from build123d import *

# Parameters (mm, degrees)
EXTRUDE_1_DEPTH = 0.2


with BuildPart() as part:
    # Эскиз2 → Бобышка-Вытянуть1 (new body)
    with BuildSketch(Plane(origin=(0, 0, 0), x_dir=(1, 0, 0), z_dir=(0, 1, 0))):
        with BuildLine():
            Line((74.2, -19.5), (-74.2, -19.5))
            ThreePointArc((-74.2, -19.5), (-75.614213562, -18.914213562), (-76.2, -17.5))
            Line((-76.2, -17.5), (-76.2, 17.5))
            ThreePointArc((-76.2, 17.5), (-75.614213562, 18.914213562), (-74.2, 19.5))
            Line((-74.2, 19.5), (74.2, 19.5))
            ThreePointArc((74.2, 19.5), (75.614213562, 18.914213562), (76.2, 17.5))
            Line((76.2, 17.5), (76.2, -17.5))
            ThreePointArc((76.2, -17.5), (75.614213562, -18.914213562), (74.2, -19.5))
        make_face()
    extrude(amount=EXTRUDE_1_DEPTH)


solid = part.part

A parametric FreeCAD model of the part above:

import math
import FreeCAD as App
import Part
import Sketcher

V = App.Vector
Q = App.Units.Quantity

doc = App.newDocument("Part")
body = doc.addObject("PartDesign::Body", "Body")

# Sketch on XZ plane
sketch1 = body.newObject("Sketcher::SketchObject", "Sketch")
sketch1.AttachmentSupport = (doc.getObject("XZ_Plane"), [""])
sketch1.MapMode = "FlatFace"
sketch1.addGeometry([
    Part.LineSegment(V(-74.2, 19.5, 0), V(74.2, 19.5, 0)),  # 0
    Part.ArcOfCircle(Part.Circle(V(74.2, 17.5, 0), V(0, 0, 1), 2), math.radians(0), math.radians(90)),  # 1
    Part.LineSegment(V(76.2, 17.5, 0), V(76.2, -17.5, 0)),  # 2
    Part.ArcOfCircle(Part.Circle(V(74.2, -17.5, 0), V(0, 0, 1), 2), math.radians(-90), math.radians(0)),  # 3
    Part.LineSegment(V(74.2, -19.5, 0), V(-74.2, -19.5, 0)),  # 4
    Part.ArcOfCircle(Part.Circle(V(-74.2, -17.5, 0), V(0, 0, 1), 2), math.radians(-180), math.radians(-90)),  # 5
    Part.LineSegment(V(-76.2, -17.5, 0), V(-76.2, 17.5, 0)),  # 6
    Part.ArcOfCircle(Part.Circle(V(-74.2, 17.5, 0), V(0, 0, 1), 2), math.radians(90), math.radians(180)),  # 7
], False)
sketch1.addConstraint([
    Sketcher.Constraint("Tangent", 0, 2, 1, 2),
    Sketcher.Constraint("Tangent", 1, 1, 2, 1),
    Sketcher.Constraint("Tangent", 2, 2, 3, 2),
    Sketcher.Constraint("Tangent", 3, 1, 4, 1),
    Sketcher.Constraint("Tangent", 4, 2, 5, 2),
    Sketcher.Constraint("Tangent", 5, 1, 6, 1),
    Sketcher.Constraint("Tangent", 6, 2, 7, 2),
    Sketcher.Constraint("Tangent", 7, 1, 0, 1),
    Sketcher.Constraint("Horizontal", 0),
    Sketcher.Constraint("Vertical", 2),
    Sketcher.Constraint("Horizontal", 4),
    Sketcher.Constraint("Vertical", 6),
    Sketcher.Constraint("Equal", 1, 3),
    Sketcher.Constraint("Equal", 3, 5),
    Sketcher.Constraint("Equal", 5, 7),
    Sketcher.Constraint("Symmetric", 1, 3, 5, 3, -1, 1),
    Sketcher.Constraint("Radius", 1, Q("2 mm")),
    Sketcher.Constraint("DistanceY", 2, 2, 2, 1, Q("35 mm")),
    Sketcher.Constraint("DistanceX", 0, 1, 0, 2, Q("148.4 mm")),
])
pad1 = body.newObject("PartDesign::Pad", "Pad")
pad1.Profile = sketch1
pad1.Length = 0.2
pad1.Reversed = True

doc.recompute()
